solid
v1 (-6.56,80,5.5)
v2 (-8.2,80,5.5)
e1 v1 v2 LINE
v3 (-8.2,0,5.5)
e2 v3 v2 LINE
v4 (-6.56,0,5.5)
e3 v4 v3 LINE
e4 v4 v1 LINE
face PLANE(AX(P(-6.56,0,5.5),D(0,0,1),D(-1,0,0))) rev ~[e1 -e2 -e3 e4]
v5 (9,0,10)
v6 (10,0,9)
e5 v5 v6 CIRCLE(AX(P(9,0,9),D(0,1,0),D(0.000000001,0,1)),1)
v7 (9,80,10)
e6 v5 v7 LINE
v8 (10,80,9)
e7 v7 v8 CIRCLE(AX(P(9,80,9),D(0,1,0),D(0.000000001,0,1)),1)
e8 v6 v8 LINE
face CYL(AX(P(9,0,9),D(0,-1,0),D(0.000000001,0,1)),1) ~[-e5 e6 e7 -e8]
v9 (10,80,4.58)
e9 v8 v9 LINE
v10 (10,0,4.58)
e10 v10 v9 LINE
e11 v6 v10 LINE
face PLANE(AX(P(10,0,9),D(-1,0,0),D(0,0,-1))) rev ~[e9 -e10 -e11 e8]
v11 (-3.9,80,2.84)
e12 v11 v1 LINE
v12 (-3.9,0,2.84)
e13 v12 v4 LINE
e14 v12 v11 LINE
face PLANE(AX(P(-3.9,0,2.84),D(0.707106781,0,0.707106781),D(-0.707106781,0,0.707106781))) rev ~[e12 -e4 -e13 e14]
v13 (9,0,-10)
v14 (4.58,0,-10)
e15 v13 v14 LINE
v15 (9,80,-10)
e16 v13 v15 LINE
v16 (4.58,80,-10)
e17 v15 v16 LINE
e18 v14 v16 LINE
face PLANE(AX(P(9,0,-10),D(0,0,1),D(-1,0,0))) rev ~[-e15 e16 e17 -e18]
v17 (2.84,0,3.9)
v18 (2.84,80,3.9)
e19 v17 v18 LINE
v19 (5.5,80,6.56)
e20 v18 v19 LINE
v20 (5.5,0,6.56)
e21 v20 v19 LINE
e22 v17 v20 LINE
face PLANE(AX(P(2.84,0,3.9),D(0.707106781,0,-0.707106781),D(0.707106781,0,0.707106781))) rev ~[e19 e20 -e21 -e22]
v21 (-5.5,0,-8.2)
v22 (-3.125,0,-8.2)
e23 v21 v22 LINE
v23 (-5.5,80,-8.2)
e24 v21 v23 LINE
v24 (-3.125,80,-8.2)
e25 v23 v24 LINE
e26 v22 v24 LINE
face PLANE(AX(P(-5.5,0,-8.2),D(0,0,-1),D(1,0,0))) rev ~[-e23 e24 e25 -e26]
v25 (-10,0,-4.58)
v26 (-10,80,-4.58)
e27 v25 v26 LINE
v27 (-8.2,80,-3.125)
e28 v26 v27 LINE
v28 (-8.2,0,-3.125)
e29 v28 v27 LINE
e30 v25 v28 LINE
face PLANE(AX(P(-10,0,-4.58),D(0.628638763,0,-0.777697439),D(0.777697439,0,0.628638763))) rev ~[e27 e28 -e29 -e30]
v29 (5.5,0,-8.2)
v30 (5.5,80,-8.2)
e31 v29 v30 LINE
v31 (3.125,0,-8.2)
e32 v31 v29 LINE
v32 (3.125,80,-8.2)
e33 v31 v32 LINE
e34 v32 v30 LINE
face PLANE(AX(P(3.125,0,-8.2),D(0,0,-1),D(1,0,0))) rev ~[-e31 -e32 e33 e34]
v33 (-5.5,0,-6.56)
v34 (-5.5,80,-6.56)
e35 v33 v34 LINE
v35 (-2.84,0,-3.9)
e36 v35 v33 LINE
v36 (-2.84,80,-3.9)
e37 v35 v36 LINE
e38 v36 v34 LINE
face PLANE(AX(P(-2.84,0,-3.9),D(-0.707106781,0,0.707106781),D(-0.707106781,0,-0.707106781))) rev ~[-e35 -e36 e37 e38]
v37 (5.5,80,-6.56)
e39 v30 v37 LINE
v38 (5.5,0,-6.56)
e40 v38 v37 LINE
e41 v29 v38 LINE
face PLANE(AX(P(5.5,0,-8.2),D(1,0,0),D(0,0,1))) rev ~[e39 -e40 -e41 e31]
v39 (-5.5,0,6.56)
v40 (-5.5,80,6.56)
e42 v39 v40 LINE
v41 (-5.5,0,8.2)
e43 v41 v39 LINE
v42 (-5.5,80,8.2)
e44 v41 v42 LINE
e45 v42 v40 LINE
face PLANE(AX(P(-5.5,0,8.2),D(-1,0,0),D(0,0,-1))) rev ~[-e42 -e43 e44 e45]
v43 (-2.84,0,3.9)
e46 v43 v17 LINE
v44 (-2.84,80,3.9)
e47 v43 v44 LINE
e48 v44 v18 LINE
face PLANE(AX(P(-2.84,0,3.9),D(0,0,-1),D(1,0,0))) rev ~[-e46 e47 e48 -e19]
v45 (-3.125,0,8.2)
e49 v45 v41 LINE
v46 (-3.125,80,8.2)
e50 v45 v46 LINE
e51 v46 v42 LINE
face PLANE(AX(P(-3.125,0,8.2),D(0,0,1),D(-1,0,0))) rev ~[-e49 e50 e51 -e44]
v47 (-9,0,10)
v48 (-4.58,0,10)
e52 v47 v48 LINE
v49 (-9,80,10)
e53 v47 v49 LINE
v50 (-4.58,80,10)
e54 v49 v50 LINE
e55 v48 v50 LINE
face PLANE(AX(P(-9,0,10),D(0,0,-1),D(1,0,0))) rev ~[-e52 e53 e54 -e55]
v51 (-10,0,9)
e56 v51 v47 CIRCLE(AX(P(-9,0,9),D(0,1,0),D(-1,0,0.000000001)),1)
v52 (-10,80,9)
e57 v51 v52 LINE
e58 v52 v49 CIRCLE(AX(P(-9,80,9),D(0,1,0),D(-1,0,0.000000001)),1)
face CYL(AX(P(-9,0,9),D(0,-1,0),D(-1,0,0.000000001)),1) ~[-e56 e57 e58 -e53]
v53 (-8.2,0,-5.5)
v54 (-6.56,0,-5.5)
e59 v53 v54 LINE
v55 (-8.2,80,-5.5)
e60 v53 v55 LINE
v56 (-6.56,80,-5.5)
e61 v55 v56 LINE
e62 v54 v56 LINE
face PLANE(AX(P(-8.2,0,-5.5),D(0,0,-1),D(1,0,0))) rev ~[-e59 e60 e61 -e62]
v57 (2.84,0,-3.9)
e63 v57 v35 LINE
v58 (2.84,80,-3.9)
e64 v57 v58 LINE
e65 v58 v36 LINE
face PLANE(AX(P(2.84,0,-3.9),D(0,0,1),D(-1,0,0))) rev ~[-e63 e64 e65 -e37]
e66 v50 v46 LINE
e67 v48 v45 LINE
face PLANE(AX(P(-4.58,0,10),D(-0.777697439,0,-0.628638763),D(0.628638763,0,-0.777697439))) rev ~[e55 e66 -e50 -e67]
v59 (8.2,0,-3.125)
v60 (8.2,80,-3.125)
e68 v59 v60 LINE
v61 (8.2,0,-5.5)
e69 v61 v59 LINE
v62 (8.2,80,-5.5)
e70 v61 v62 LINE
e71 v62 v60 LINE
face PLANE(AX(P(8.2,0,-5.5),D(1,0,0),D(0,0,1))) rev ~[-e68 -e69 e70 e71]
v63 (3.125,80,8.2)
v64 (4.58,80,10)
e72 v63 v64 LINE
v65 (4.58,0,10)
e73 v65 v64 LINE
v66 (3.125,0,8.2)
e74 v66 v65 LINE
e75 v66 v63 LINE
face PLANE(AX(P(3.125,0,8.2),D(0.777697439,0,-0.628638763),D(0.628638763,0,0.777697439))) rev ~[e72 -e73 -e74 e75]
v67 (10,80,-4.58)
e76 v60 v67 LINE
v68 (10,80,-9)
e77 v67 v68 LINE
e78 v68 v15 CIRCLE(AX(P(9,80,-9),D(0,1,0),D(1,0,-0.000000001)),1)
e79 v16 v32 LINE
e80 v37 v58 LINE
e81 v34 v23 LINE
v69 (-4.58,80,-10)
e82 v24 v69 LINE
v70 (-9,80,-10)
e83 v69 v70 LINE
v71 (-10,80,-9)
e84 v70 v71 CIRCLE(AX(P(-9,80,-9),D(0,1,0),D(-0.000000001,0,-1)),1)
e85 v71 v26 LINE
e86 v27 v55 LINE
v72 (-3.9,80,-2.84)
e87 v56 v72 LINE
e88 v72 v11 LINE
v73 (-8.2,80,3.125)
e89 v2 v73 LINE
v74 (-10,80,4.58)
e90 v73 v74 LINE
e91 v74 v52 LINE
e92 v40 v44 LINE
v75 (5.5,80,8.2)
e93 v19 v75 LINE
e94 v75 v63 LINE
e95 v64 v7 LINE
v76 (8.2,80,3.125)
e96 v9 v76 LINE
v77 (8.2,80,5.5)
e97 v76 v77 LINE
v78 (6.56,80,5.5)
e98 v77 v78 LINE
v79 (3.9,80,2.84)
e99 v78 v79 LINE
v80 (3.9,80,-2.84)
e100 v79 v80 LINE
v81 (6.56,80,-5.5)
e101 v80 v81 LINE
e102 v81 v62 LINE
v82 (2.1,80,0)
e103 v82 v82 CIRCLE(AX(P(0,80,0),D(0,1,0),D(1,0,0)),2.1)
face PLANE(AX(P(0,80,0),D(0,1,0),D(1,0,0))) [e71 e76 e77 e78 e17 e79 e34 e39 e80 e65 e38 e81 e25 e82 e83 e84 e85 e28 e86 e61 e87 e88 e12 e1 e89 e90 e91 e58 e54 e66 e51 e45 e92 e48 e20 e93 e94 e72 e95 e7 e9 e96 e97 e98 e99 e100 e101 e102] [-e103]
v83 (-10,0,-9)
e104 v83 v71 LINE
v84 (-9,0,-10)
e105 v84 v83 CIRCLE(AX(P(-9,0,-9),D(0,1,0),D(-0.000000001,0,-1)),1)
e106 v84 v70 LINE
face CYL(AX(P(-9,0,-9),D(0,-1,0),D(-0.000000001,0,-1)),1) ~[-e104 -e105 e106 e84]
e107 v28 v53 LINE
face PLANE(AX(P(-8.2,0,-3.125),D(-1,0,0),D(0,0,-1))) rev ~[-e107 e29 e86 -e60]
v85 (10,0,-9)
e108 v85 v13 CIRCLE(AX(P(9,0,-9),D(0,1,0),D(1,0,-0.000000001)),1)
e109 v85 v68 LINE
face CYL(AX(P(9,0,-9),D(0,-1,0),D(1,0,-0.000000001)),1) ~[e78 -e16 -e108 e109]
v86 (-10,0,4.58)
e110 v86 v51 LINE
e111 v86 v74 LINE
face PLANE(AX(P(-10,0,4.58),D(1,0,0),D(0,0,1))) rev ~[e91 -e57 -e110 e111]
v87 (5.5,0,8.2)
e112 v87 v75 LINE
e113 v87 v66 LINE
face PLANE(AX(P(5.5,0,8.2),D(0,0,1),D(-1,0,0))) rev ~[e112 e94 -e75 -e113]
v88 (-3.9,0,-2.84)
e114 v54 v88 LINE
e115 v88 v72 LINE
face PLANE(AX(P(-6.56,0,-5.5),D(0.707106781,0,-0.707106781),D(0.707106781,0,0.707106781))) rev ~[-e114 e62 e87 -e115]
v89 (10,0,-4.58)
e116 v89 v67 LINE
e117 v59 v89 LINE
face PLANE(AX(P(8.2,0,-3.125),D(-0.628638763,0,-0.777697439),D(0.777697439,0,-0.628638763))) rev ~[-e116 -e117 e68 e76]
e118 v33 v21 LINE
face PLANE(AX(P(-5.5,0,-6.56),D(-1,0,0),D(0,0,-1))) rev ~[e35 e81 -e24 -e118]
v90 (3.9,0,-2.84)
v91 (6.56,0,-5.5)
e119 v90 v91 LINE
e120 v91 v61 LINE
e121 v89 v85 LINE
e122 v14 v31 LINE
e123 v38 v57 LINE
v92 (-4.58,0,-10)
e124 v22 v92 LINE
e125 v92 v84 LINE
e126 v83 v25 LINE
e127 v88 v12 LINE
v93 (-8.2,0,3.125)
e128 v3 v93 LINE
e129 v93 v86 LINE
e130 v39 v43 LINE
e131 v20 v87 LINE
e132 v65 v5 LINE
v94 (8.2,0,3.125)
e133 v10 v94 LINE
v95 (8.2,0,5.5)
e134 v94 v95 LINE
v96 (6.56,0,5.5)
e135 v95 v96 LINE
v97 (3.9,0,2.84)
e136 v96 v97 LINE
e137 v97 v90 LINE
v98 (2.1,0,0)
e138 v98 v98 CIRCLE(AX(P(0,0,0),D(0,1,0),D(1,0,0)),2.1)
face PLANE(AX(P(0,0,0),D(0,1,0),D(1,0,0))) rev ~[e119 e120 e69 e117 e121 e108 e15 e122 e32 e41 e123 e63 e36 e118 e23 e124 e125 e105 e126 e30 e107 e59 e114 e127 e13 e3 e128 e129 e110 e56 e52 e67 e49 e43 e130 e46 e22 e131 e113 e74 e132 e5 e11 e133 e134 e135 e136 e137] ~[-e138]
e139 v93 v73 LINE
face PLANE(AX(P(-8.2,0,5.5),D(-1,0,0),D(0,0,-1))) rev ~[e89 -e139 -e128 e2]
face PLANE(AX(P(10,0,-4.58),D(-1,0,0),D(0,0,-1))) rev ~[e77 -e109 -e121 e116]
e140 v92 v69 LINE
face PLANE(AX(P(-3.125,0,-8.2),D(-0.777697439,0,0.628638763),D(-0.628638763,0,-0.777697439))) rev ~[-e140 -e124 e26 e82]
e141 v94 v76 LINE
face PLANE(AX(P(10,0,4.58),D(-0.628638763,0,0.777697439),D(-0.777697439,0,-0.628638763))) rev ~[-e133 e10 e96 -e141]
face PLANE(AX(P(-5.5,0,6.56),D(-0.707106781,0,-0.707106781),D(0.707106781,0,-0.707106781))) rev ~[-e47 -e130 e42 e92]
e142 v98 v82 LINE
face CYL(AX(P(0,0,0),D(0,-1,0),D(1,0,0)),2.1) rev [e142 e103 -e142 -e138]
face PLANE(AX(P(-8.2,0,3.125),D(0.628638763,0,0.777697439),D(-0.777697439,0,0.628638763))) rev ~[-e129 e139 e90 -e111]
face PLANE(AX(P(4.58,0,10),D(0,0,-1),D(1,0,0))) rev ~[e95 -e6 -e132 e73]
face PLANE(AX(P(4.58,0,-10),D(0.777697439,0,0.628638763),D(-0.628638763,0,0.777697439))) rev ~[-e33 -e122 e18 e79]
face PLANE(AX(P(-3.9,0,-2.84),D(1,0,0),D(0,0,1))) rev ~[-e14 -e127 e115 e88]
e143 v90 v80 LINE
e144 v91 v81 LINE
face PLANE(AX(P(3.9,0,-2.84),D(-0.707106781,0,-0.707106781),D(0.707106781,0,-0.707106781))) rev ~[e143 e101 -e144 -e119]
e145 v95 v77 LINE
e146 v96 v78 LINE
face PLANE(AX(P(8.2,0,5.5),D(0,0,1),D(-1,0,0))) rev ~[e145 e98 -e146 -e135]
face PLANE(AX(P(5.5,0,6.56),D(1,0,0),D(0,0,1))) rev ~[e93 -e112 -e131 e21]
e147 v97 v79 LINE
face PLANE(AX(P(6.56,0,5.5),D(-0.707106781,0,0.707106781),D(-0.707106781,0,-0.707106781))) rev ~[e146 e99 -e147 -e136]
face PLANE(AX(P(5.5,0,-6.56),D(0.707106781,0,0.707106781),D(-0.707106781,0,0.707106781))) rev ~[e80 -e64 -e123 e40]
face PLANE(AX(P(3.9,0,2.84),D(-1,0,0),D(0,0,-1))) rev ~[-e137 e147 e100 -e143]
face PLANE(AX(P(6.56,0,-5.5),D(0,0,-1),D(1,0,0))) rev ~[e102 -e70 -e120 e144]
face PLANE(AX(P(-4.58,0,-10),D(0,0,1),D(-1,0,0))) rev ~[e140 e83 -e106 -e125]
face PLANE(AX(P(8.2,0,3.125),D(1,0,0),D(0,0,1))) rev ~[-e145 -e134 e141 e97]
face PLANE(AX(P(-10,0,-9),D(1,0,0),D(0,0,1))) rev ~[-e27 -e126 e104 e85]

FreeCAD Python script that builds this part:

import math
import FreeCAD as App
import Part
import Sketcher

V = App.Vector

doc = App.newDocument("Part")
body = doc.addObject("PartDesign::Body", "Body")

sketch1 = doc.addObject("Sketcher::SketchObject", "Sketch")
body.addObject(sketch1)
sketch1.AttachmentSupport = (doc.XZ_Plane, [""])
sketch1.MapMode = "FlatFace"
sketch1.addGeometry([
    Part.LineSegment(V(-5.5, -8.2, 0), V(-3.125, -8.2, 0)),
    Part.LineSegment(V(-3.125, -8.2, 0), V(-4.58, -10, 0)),
    Part.LineSegment(V(-4.58, -10, 0), V(-9, -10, 0)),
    Part.ArcOfCircle(Part.Circle(V(-9, -9, 0), V(0, 0, 1), 1), math.radians(-180), math.radians(-90)),
    Part.LineSegment(V(-10, -9, 0), V(-10, -4.58, 0)),
    Part.LineSegment(V(-10, -4.58, 0), V(-8.2, -3.125, 0)),
    Part.LineSegment(V(-8.2, -3.125, 0), V(-8.2, -5.5, 0)),
    Part.LineSegment(V(-8.2, -5.5, 0), V(-6.56, -5.5, 0)),
    Part.LineSegment(V(-6.56, -5.5, 0), V(-3.9, -2.84, 0)),
    Part.LineSegment(V(-3.9, -2.84, 0), V(-3.9, 2.84, 0)),
    Part.LineSegment(V(-3.9, 2.84, 0), V(-6.56, 5.5, 0)),
    Part.LineSegment(V(-6.56, 5.5, 0), V(-8.2, 5.5, 0)),
    Part.LineSegment(V(-8.2, 5.5, 0), V(-8.2, 3.125, 0)),
    Part.LineSegment(V(-8.2, 3.125, 0), V(-10, 4.58, 0)),
    Part.LineSegment(V(-10, 4.58, 0), V(-10, 9, 0)),
    Part.ArcOfCircle(Part.Circle(V(-9, 9, 0), V(0, 0, 1), 1), math.radians(90), math.radians(180)),
    Part.LineSegment(V(-9, 10, 0), V(-4.58, 10, 0)),
    Part.LineSegment(V(-4.58, 10, 0), V(-3.125, 8.2, 0)),
    Part.LineSegment(V(-3.125, 8.2, 0), V(-5.5, 8.2, 0)),
    Part.LineSegment(V(-5.5, 8.2, 0), V(-5.5, 6.56, 0)),
    Part.LineSegment(V(-5.5, 6.56, 0), V(-2.84, 3.9, 0)),
    Part.LineSegment(V(-2.84, 3.9, 0), V(2.84, 3.9, 0)),
    Part.LineSegment(V(2.84, 3.9, 0), V(5.5, 6.56, 0)),
    Part.LineSegment(V(5.5, 6.56, 0), V(5.5, 8.2, 0)),
    Part.LineSegment(V(5.5, 8.2, 0), V(3.125, 8.2, 0)),
    Part.LineSegment(V(3.125, 8.2, 0), V(4.58, 10, 0)),
    Part.LineSegment(V(4.58, 10, 0), V(9, 10, 0)),
    Part.ArcOfCircle(Part.Circle(V(9, 9, 0), V(0, 0, 1), 1), math.radians(0), math.radians(90)),
    Part.LineSegment(V(10, 9, 0), V(10, 4.58, 0)),
    Part.LineSegment(V(10, 4.58, 0), V(8.2, 3.125, 0)),
    Part.LineSegment(V(8.2, 3.125, 0), V(8.2, 5.5, 0)),
    Part.LineSegment(V(8.2, 5.5, 0), V(6.56, 5.5, 0)),
    Part.LineSegment(V(6.56, 5.5, 0), V(3.9, 2.84, 0)),
    Part.LineSegment(V(3.9, 2.84, 0), V(3.9, -2.84, 0)),
    Part.LineSegment(V(3.9, -2.84, 0), V(6.56, -5.5, 0)),
    Part.LineSegment(V(6.56, -5.5, 0), V(8.2, -5.5, 0)),
    Part.LineSegment(V(8.2, -5.5, 0), V(8.2, -3.125, 0)),
    Part.LineSegment(V(8.2, -3.125, 0), V(10, -4.58, 0)),
    Part.LineSegment(V(10, -4.58, 0), V(10, -9, 0)),
    Part.ArcOfCircle(Part.Circle(V(9, -9, 0), V(0, 0, 1), 1), math.radians(-90), math.radians(0)),
    Part.LineSegment(V(9, -10, 0), V(4.58, -10, 0)),
    Part.LineSegment(V(4.58, -10, 0), V(3.125, -8.2, 0)),
    Part.LineSegment(V(3.125, -8.2, 0), V(5.5, -8.2, 0)),
    Part.LineSegment(V(5.5, -8.2, 0), V(5.5, -6.56, 0)),
    Part.LineSegment(V(5.5, -6.56, 0), V(2.84, -3.9, 0)),
    Part.LineSegment(V(2.84, -3.9, 0), V(-2.84, -3.9, 0)),
    Part.LineSegment(V(-2.84, -3.9, 0), V(-5.5, -6.56, 0)),
    Part.LineSegment(V(-5.5, -6.56, 0), V(-5.5, -8.2, 0)),
    Part.Circle(V(0, 0, 0), V(0, 0, 1), 2.1),
], False)
sketch1.addConstraint([
    Sketcher.Constraint("Coincident", 0, 2, 1, 1),
    Sketcher.Constraint("Coincident", 1, 2, 2, 1),
    Sketcher.Constraint("Tangent", 2, 2, 3, 2),
    Sketcher.Constraint("Tangent", 3, 1, 4, 1),
    Sketcher.Constraint("Coincident", 4, 2, 5, 1),
    Sketcher.Constraint("Coincident", 5, 2, 6, 1),
    Sketcher.Constraint("Coincident", 6, 2, 7, 1),
    Sketcher.Constraint("Coincident", 7, 2, 8, 1),
    Sketcher.Constraint("Coincident", 8, 2, 9, 1),
    Sketcher.Constraint("Coincident", 9, 2, 10, 1),
    Sketcher.Constraint("Coincident", 10, 2, 11, 1),
    Sketcher.Constraint("Coincident", 11, 2, 12, 1),
    Sketcher.Constraint("Coincident", 12, 2, 13, 1),
    Sketcher.Constraint("Coincident", 13, 2, 14, 1),
    Sketcher.Constraint("Tangent", 14, 2, 15, 2),
    Sketcher.Constraint("Tangent", 15, 1, 16, 1),
    Sketcher.Constraint("Coincident", 16, 2, 17, 1),
    Sketcher.Constraint("Coincident", 17, 2, 18, 1),
    Sketcher.Constraint("Coincident", 18, 2, 19, 1),
    Sketcher.Constraint("Coincident", 19, 2, 20, 1),
    Sketcher.Constraint("Coincident", 20, 2, 21, 1),
    Sketcher.Constraint("Coincident", 21, 2, 22, 1),
    Sketcher.Constraint("Coincident", 22, 2, 23, 1),
    Sketcher.Constraint("Coincident", 23, 2, 24, 1),
    Sketcher.Constraint("Coincident", 24, 2, 25, 1),
    Sketcher.Constraint("Coincident", 25, 2, 26, 1),
    Sketcher.Constraint("Tangent", 26, 2, 27, 2),
    Sketcher.Constraint("Tangent", 27, 1, 28, 1),
    Sketcher.Constraint("Coincident", 28, 2, 29, 1),
    Sketcher.Constraint("Coincident", 29, 2, 30, 1),
    Sketcher.Constraint("Coincident", 30, 2, 31, 1),
    Sketcher.Constraint("Coincident", 31, 2, 32, 1),
    Sketcher.Constraint("Coincident", 32, 2, 33, 1),
    Sketcher.Constraint("Coincident", 33, 2, 34, 1),
    Sketcher.Constraint("Coincident", 34, 2, 35, 1),
    Sketcher.Constraint("Coincident", 35, 2, 36, 1),
    Sketcher.Constraint("Coincident", 36, 2, 37, 1),
    Sketcher.Constraint("Coincident", 37, 2, 38, 1),
    Sketcher.Constraint("Tangent", 38, 2, 39, 2),
    Sketcher.Constraint("Tangent", 39, 1, 40, 1),
    Sketcher.Constraint("Coincident", 40, 2, 41, 1),
    Sketcher.Constraint("Coincident", 41, 2, 42, 1),
    Sketcher.Constraint("Coincident", 42, 2, 43, 1),
    Sketcher.Constraint("Coincident", 43, 2, 44, 1),
    Sketcher.Constraint("Coincident", 44, 2, 45, 1),
    Sketcher.Constraint("Coincident", 45, 2, 46, 1),
    Sketcher.Constraint("Coincident", 46, 2, 47, 1),
    Sketcher.Constraint("Coincident", 47, 2, 0, 1),
    Sketcher.Constraint("Horizontal", 0),
    Sketcher.Constraint("Horizontal", 2),
    Sketcher.Constraint("Vertical", 4),
    Sketcher.Constraint("Vertical", 6),
    Sketcher.Constraint("Horizontal", 7),
    Sketcher.Constraint("Vertical", 9),
    Sketcher.Constraint("Horizontal", 11),
    Sketcher.Constraint("Vertical", 12),
    Sketcher.Constraint("Vertical", 14),
    Sketcher.Constraint("Horizontal", 16),
    Sketcher.Constraint("Horizontal", 18),
    Sketcher.Constraint("Vertical", 19),
    Sketcher.Constraint("Horizontal", 21),
    Sketcher.Constraint("Vertical", 23),
    Sketcher.Constraint("Horizontal", 24),
    Sketcher.Constraint("Horizontal", 26),
    Sketcher.Constraint("Vertical", 28),
    Sketcher.Constraint("Vertical", 30),
    Sketcher.Constraint("Horizontal", 31),
    Sketcher.Constraint("Vertical", 33),
    Sketcher.Constraint("Horizontal", 35),
    Sketcher.Constraint("Vertical", 36),
    Sketcher.Constraint("Vertical", 38),
    Sketcher.Constraint("Horizontal", 40),
    Sketcher.Constraint("Horizontal", 42),
    Sketcher.Constraint("Vertical", 43),
    Sketcher.Constraint("Horizontal", 45),
    Sketcher.Constraint("Vertical", 47),
    Sketcher.Constraint("Coincident", 48, 3, -1, 1),
    Sketcher.Constraint("Equal", 3, 15),
    Sketcher.Constraint("Equal", 15, 27),
    Sketcher.Constraint("Equal", 27, 39),
    Sketcher.Constraint("Symmetric", 3, 3, 27, 3, -1, 1),
    Sketcher.Constraint("Symmetric", 15, 3, 39, 3, -1, 1),
    Sketcher.Constraint("Symmetric", 0, 2, 24, 2, -1, 1),
    Sketcher.Constraint("Symmetric", 5, 2, 29, 2, -1, 1),
    Sketcher.Constraint("Symmetric", 7, 2, 31, 2, -1, 1),
    Sketcher.Constraint("Symmetric", 8, 2, 32, 2, -1, 1),
    Sketcher.Constraint("Symmetric", 10, 2, 34, 2, -1, 1),
    Sketcher.Constraint("Symmetric", 12, 2, 36, 2, -1, 1),
    Sketcher.Constraint("Symmetric", 17, 2, 41, 2, -1, 1),
    Sketcher.Constraint("Symmetric", 19, 2, 43, 2, -1, 1),
    Sketcher.Constraint("Symmetric", 20, 2, 44, 2, -1, 1),
    Sketcher.Constraint("Symmetric", 22, 2, 46, 2, -1, 1),
    Sketcher.Constraint("Symmetric", 15, 3, 27, 3, -2),
    Sketcher.Constraint("Symmetric", 19, 2, 22, 2, -2),
    Sketcher.Constraint("Symmetric", 17, 2, 24, 2, -2),
    Sketcher.Constraint("Symmetric", 12, 2, 29, 2, -2),
    Sketcher.Constraint("Symmetric", 10, 2, 31, 2, -2),
    Sketcher.Constraint("Perpendicular", 8, 10),
    Sketcher.Constraint("Perpendicular", 1, 13),
    Sketcher.Constraint("Perpendicular", 5, 17),
    Sketcher.Constraint("Parallel", 10, 20),
    Sketcher.Constraint("Perpendicular", 20, 22),
    Sketcher.Constraint("Perpendicular", 13, 25),
    Sketcher.Constraint("Perpendicular", 17, 29),
    Sketcher.Constraint("Perpendicular", 32, 34),
    Sketcher.Constraint("Perpendicular", 25, 37),
    Sketcher.Constraint("Perpendicular", 29, 41),
    Sketcher.Constraint("Perpendicular", 44, 46),
    Sketcher.Constraint("Horizontal", 13, 2, 28, 2),
    Sketcher.Constraint("Horizontal", 9, 2, 32, 2),
    Sketcher.Constraint("Equal", 40, 4),
    Sketcher.Constraint("Equal", 42, 6),
    Sketcher.Constraint("Equal", 45, 9),
    Sketcher.Constraint("Equal", 35, 19),
    Sketcher.Constraint("Equal", 1, 5),
    Sketcher.Constraint("Equal", 10, 20),
    Sketcher.Constraint("Radius", 3, 1.0),
    Sketcher.Constraint("Diameter", 48, 4.2),
    Sketcher.Constraint("DistanceX", 3, 3, -1, 1, 9.0),
    Sketcher.Constraint("DistanceX", 2, 2, 2, 1, 4.42),
    Sketcher.Constraint("DistanceX", 7, 1, 7, 2, 1.64),
    Sketcher.Constraint("DistanceX", 21, 1, 21, 2, 5.68),
    Sketcher.Constraint("DistanceY", 0, 2, -1, 1, 8.2),
    Sketcher.Constraint("DistanceY", 6, 2, -1, 1, 5.5),
    Sketcher.Constraint("DistanceX", 0, 1, 0, 2, 2.375),
])
pad1 = doc.addObject("PartDesign::Pad", "Pad")
body.addObject(pad1)
pad1.Profile = sketch1
pad1.Length = 80
pad1.Reversed = True

doc.recompute()
